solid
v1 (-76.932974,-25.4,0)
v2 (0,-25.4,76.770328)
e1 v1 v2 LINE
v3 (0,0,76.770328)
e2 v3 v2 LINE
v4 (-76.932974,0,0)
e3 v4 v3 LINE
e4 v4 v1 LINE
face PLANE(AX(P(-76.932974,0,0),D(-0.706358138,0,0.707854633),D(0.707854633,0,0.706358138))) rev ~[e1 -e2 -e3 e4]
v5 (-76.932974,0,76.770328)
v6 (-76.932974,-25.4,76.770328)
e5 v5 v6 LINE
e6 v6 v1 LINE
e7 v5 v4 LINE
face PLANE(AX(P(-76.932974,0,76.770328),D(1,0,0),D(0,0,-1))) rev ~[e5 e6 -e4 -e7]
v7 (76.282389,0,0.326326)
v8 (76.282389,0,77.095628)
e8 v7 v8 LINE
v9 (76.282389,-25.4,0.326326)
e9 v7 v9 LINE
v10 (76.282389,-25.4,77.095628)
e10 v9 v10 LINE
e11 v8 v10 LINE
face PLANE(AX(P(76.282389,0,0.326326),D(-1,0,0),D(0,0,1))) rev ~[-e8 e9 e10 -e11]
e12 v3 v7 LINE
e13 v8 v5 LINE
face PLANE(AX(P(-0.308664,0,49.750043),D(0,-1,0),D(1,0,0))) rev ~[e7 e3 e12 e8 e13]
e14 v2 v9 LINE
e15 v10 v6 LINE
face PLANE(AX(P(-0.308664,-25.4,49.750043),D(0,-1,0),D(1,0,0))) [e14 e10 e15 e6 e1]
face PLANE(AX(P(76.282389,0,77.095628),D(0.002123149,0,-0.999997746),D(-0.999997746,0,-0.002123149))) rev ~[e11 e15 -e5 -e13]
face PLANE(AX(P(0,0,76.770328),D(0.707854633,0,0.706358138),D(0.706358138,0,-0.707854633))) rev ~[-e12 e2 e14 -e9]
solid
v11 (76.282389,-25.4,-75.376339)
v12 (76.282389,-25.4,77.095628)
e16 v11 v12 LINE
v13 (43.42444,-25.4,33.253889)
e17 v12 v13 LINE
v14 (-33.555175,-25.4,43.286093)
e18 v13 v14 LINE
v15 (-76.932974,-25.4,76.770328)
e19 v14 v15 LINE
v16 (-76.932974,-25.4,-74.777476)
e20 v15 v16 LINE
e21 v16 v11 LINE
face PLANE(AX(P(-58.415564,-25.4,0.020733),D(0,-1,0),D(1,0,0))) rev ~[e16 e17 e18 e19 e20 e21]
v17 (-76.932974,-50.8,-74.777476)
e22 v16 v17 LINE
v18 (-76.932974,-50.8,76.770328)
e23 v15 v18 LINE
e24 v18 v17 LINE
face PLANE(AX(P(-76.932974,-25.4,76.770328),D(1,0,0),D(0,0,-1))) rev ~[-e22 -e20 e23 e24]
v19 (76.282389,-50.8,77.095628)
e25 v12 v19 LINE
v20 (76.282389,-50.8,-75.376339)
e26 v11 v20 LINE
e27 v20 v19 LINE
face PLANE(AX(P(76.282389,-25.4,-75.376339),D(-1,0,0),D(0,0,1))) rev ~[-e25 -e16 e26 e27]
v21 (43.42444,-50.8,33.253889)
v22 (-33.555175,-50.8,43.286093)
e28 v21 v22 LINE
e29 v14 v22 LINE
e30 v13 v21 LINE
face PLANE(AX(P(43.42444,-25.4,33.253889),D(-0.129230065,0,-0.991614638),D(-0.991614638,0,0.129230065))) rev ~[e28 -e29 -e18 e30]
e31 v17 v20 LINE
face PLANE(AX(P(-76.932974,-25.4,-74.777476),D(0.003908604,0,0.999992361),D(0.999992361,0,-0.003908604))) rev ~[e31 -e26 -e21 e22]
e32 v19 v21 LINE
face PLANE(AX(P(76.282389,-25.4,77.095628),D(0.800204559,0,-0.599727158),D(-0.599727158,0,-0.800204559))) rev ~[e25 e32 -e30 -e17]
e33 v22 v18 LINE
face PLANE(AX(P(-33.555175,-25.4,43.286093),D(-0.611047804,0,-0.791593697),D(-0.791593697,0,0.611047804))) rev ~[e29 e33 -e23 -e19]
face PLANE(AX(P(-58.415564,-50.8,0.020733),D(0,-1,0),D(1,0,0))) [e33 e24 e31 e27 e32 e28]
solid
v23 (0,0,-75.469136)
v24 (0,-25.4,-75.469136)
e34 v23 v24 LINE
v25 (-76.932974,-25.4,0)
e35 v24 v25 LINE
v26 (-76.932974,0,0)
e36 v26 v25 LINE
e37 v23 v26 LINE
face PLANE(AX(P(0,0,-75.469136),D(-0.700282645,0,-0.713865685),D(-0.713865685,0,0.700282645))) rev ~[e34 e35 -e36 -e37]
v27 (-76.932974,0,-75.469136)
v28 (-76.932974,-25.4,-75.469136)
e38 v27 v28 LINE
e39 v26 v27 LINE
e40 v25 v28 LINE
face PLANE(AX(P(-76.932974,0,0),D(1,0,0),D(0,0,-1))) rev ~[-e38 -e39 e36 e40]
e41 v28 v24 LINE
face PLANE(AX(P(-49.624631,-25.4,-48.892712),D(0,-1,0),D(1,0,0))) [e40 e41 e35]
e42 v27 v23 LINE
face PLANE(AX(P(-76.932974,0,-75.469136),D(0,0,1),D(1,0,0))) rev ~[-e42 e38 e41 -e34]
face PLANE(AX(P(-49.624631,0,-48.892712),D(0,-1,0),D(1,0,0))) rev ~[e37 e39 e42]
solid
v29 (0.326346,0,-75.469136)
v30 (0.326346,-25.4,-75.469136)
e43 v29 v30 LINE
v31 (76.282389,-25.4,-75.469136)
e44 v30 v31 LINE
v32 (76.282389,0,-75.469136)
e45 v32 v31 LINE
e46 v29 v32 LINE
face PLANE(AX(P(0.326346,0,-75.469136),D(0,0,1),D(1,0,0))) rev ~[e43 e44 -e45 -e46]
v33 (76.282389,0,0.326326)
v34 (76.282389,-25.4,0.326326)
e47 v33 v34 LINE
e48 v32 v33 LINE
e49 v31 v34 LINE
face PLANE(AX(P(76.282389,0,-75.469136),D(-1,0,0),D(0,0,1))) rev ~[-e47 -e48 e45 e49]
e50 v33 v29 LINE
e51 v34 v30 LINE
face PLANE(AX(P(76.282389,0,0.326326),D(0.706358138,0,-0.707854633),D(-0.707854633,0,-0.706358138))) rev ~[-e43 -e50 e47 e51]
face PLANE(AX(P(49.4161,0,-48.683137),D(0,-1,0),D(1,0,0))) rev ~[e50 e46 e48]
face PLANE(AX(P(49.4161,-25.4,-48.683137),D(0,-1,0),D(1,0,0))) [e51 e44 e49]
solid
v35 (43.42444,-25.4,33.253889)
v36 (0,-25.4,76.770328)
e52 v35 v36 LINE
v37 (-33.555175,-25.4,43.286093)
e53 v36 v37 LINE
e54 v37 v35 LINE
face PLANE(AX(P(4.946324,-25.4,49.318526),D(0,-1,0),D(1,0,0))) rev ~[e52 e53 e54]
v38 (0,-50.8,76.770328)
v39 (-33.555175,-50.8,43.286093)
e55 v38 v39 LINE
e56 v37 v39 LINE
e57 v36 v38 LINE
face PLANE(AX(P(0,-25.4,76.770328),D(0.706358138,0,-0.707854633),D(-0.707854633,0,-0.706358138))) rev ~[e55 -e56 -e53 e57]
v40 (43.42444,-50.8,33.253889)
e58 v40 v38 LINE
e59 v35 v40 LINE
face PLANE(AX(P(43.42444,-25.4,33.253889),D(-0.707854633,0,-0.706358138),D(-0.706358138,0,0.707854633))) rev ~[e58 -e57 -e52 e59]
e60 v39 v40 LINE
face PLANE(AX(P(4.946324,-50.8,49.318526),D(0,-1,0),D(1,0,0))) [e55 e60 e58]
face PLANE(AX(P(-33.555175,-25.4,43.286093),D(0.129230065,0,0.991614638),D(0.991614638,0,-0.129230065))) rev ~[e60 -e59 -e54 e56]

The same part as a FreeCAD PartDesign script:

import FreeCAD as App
import Part
import Sketcher
from FreeCAD import Vector
Q = App.Units.Quantity

doc = App.newDocument("Part")
body = doc.addObject("PartDesign::Body", "Body")

# Sketch on XZ plane
sketch1 = doc.addObject("Sketcher::SketchObject", "Sketch")
body.addObject(sketch1)
sketch1.AttachmentSupport = (doc.XZ_Plane, [""])
sketch1.MapMode = "FlatFace"
sketch1.addGeometry([
    Part.LineSegment(Vector(76, 77, 0), Vector(-77, 77, 0)),  # 0
    Part.LineSegment(Vector(-77, 77, 0), Vector(-77, 0, 0)),  # 1
    Part.LineSegment(Vector(-77, 0, 0), Vector(0, 77, 0)),  # 2
    Part.LineSegment(Vector(0, 77, 0), Vector(76, 0, 0)),  # 3
    Part.LineSegment(Vector(76, 0, 0), Vector(76, 77, 0)),  # 4
], False)
sketch1.addConstraint([
    Sketcher.Constraint("Coincident", 0, 2, 1, 1),
    Sketcher.Constraint("Coincident", 1, 2, 2, 1),
    Sketcher.Constraint("Coincident", 2, 2, 3, 1),
    Sketcher.Constraint("Coincident", 3, 2, 4, 1),
    Sketcher.Constraint("Coincident", 4, 2, 0, 1),
    Sketcher.Constraint("Vertical", 1),
    Sketcher.Constraint("Vertical", 4),
    Sketcher.Constraint("PointOnObject", 1, 2, -1),
    Sketcher.Constraint("PointOnObject", 2, 2, -2),
    Sketcher.Constraint("Perpendicular", 2, 3),
    Sketcher.Constraint("Horizontal", 0, 2, 2, 2),
    Sketcher.Constraint("DistanceY", 4, 1, 4, 2, Q("76.769302 mm")),
    Sketcher.Constraint("DistanceY", 3, 2, 2, 2, Q("76.444002 mm")),
    Sketcher.Constraint("Distance", 0, Q("153.215709 mm")),
    Sketcher.Constraint("Distance", 2, Q("108.684708 mm")),
])
pad1 = doc.addObject("PartDesign::Pad", "Pad")
body.addObject(pad1)
pad1.Profile = sketch1
pad1.Length = Q("1 in")
body2 = doc.addObject("PartDesign::Body", "Body001")

# Sketch on XZ plane
sketch2 = doc.addObject("Sketcher::SketchObject", "Sketch001")
body2.addObject(sketch2)
sketch2.AttachmentSupport = (doc.getObject("XZ_Plane001"), [""])
sketch2.MapMode = "FlatFace"
sketch2.addGeometry([
    Part.LineSegment(Vector(76, -75, 0), Vector(76, 0, 0)),
    Part.LineSegment(Vector(76, 0, 0), Vector(0, -75, 0)),
    Part.LineSegment(Vector(0, -75, 0), Vector(76, -75, 0)),
], False)
sketch2.addConstraint([
    Sketcher.Constraint("Coincident", 0, 2, 1, 1),
    Sketcher.Constraint("Coincident", 1, 2, 2, 1),
    Sketcher.Constraint("Coincident", 2, 2, 0, 1),
    Sketcher.Constraint("Vertical", 0),
    Sketcher.Constraint("Horizontal", 2),
    Sketcher.Constraint("Distance", 1, Q("107.304579 mm")),
    Sketcher.Constraint("DistanceX", 2, 1, 2, 2, Q("75.956043 mm")),
    Sketcher.Constraint("DistanceX", -1, 1, 0, 2, Q("76.282389 mm")),
    Sketcher.Constraint("DistanceY", -1, 1, 0, 2, Q("0.326326 mm")),
])
pad2 = doc.addObject("PartDesign::Pad", "Pad001")
body2.addObject(pad2)
pad2.Profile = sketch2
pad2.Length = Q("1 in")
body3 = doc.addObject("PartDesign::Body", "Body002")

# Sketch on XZ plane
sketch3 = doc.addObject("Sketcher::SketchObject", "Sketch002")
body3.addObject(sketch3)
sketch3.AttachmentSupport = (doc.getObject("XZ_Plane002"), [""])
sketch3.MapMode = "FlatFace"
sketch3.addGeometry([
    Part.LineSegment(Vector(0, -75, 0), Vector(-77, 0, 0)),
    Part.LineSegment(Vector(-77, 0, 0), Vector(-77, -75, 0)),
    Part.LineSegment(Vector(-77, -75, 0), Vector(0, -75, 0)),
], False)
sketch3.addConstraint([
    Sketcher.Constraint("Coincident", 0, 2, 1, 1),
    Sketcher.Constraint("Coincident", 1, 2, 2, 1),
    Sketcher.Constraint("Coincident", 2, 2, 0, 1),
    Sketcher.Constraint("Vertical", 1),
    Sketcher.Constraint("Horizontal", 2),
    Sketcher.Constraint("PointOnObject", 0, 2, -1),
    Sketcher.Constraint("PointOnObject", 2, 2, -2),
    Sketcher.Constraint("DistanceX", 2, 1, 2, 2, Q("76.932974 mm")),
    Sketcher.Constraint("DistanceY", 1, 2, 1, 1, Q("75.469136 mm")),
])
pad3 = doc.addObject("PartDesign::Pad", "Pad002")
body3.addObject(pad3)
pad3.Profile = sketch3
pad3.Length = Q("1 in")
body4 = doc.addObject("PartDesign::Body", "Body003")

# Sketch on XZ plane
sketch4 = doc.addObject("Sketcher::SketchObject", "Sketch003")
body4.addObject(sketch4)
sketch4.AttachmentSupport = (doc.getObject("XZ_Plane003"), [""])
sketch4.MapMode = "FlatFace"
sketch4.AttachmentOffset = App.Placement(Vector(0, 0, 1 * 25.4), App.Rotation())
sketch4.addGeometry([
    Part.LineSegment(Vector(0, 77, 0), Vector(-34, 43, 0)),
    Part.LineSegment(Vector(-34, 43, 0), Vector(43, 33, 0)),
    Part.LineSegment(Vector(43, 33, 0), Vector(0, 77, 0)),
], False)
sketch4.addConstraint([
    Sketcher.Constraint("Coincident", 0, 2, 1, 1),
    Sketcher.Constraint("Coincident", 1, 2, 2, 1),
    Sketcher.Constraint("Coincident", 2, 2, 0, 1),
    Sketcher.Constraint("PointOnObject", 2, 2, -2),
    Sketcher.Constraint("Perpendicular", 0, 2),
    Sketcher.Constraint("Distance", 2, Q("61.476519 mm")),
    Sketcher.Constraint("DistanceX", -1, 1, 1, 2, Q("43.42444 mm")),
    Sketcher.Constraint("DistanceY", -1, 1, 1, 2, Q("33.253889 mm")),
    Sketcher.Constraint("Distance", 0, Q("47.404047 mm")),
])
pad4 = doc.addObject("PartDesign::Pad", "Pad003")
body4.addObject(pad4)
pad4.Profile = sketch4
pad4.Length = Q("1 in")
body5 = doc.addObject("PartDesign::Body", "Body004")

# Sketch on XZ plane
sketch5 = doc.addObject("Sketcher::SketchObject", "Sketch004")
body5.addObject(sketch5)
sketch5.AttachmentSupport = (doc.getObject("XZ_Plane004"), [""])
sketch5.MapMode = "FlatFace"
sketch5.AttachmentOffset = App.Placement(Vector(0, 0, 1 * 25.4), App.Rotation())
sketch5.addGeometry([
    Part.LineSegment(Vector(-34, 43, 0), Vector(-77, 77, 0)),  # 0
    Part.LineSegment(Vector(-77, 77, 0), Vector(-77, -75, 0)),  # 1
    Part.LineSegment(Vector(-77, -75, 0), Vector(76, -75, 0)),  # 2
    Part.LineSegment(Vector(76, -75, 0), Vector(76, 77, 0)),  # 3
    Part.LineSegment(Vector(76, 77, 0), Vector(43, 33, 0)),  # 4
    Part.LineSegment(Vector(43, 33, 0), Vector(-34, 43, 0)),  # 5
], False)
sketch5.addConstraint([
    Sketcher.Constraint("Coincident", 0, 2, 1, 1),
    Sketcher.Constraint("Coincident", 1, 2, 2, 1),
    Sketcher.Constraint("Coincident", 2, 2, 3, 1),
    Sketcher.Constraint("Coincident", 3, 2, 4, 1),
    Sketcher.Constraint("Coincident", 4, 2, 5, 1),
    Sketcher.Constraint("Coincident", 5, 2, 0, 1),
    Sketcher.Constraint("Vertical", 1),
    Sketcher.Constraint("Vertical", 3),
    Sketcher.Constraint("DistanceY", 0, 2, 3, 2, Q("0.3253 mm")),
    Sketcher.Constraint("DistanceX", 0, 2, 5, 2, Q("43.3778 mm")),
    Sketcher.Constraint("Distance", 0, Q("54.798061 mm")),
    Sketcher.Constraint("DistanceY", 1, 2, 1, 1, Q("151.547804 mm")),
    Sketcher.Constraint("DistanceY", 3, 1, 3, 2, Q("152.471967 mm")),
    Sketcher.Constraint("DistanceX", -1, 1, 2, 2, Q("76.282389 mm")),
    Sketcher.Constraint("DistanceY", 2, 2, -1, 1, Q("75.376339 mm")),
    Sketcher.Constraint("DistanceX", -1, 1, 4, 2, Q("43.42444 mm")),
    Sketcher.Constraint("DistanceY", -1, 1, 4, 2, Q("33.253889 mm")),
    Sketcher.Constraint("Distance", 2, Q("153.216534 mm")),
])
pad5 = doc.addObject("PartDesign::Pad", "Pad004")
body5.addObject(pad5)
pad5.Profile = sketch5
pad5.Length = Q("1 in")

doc.recompute()
